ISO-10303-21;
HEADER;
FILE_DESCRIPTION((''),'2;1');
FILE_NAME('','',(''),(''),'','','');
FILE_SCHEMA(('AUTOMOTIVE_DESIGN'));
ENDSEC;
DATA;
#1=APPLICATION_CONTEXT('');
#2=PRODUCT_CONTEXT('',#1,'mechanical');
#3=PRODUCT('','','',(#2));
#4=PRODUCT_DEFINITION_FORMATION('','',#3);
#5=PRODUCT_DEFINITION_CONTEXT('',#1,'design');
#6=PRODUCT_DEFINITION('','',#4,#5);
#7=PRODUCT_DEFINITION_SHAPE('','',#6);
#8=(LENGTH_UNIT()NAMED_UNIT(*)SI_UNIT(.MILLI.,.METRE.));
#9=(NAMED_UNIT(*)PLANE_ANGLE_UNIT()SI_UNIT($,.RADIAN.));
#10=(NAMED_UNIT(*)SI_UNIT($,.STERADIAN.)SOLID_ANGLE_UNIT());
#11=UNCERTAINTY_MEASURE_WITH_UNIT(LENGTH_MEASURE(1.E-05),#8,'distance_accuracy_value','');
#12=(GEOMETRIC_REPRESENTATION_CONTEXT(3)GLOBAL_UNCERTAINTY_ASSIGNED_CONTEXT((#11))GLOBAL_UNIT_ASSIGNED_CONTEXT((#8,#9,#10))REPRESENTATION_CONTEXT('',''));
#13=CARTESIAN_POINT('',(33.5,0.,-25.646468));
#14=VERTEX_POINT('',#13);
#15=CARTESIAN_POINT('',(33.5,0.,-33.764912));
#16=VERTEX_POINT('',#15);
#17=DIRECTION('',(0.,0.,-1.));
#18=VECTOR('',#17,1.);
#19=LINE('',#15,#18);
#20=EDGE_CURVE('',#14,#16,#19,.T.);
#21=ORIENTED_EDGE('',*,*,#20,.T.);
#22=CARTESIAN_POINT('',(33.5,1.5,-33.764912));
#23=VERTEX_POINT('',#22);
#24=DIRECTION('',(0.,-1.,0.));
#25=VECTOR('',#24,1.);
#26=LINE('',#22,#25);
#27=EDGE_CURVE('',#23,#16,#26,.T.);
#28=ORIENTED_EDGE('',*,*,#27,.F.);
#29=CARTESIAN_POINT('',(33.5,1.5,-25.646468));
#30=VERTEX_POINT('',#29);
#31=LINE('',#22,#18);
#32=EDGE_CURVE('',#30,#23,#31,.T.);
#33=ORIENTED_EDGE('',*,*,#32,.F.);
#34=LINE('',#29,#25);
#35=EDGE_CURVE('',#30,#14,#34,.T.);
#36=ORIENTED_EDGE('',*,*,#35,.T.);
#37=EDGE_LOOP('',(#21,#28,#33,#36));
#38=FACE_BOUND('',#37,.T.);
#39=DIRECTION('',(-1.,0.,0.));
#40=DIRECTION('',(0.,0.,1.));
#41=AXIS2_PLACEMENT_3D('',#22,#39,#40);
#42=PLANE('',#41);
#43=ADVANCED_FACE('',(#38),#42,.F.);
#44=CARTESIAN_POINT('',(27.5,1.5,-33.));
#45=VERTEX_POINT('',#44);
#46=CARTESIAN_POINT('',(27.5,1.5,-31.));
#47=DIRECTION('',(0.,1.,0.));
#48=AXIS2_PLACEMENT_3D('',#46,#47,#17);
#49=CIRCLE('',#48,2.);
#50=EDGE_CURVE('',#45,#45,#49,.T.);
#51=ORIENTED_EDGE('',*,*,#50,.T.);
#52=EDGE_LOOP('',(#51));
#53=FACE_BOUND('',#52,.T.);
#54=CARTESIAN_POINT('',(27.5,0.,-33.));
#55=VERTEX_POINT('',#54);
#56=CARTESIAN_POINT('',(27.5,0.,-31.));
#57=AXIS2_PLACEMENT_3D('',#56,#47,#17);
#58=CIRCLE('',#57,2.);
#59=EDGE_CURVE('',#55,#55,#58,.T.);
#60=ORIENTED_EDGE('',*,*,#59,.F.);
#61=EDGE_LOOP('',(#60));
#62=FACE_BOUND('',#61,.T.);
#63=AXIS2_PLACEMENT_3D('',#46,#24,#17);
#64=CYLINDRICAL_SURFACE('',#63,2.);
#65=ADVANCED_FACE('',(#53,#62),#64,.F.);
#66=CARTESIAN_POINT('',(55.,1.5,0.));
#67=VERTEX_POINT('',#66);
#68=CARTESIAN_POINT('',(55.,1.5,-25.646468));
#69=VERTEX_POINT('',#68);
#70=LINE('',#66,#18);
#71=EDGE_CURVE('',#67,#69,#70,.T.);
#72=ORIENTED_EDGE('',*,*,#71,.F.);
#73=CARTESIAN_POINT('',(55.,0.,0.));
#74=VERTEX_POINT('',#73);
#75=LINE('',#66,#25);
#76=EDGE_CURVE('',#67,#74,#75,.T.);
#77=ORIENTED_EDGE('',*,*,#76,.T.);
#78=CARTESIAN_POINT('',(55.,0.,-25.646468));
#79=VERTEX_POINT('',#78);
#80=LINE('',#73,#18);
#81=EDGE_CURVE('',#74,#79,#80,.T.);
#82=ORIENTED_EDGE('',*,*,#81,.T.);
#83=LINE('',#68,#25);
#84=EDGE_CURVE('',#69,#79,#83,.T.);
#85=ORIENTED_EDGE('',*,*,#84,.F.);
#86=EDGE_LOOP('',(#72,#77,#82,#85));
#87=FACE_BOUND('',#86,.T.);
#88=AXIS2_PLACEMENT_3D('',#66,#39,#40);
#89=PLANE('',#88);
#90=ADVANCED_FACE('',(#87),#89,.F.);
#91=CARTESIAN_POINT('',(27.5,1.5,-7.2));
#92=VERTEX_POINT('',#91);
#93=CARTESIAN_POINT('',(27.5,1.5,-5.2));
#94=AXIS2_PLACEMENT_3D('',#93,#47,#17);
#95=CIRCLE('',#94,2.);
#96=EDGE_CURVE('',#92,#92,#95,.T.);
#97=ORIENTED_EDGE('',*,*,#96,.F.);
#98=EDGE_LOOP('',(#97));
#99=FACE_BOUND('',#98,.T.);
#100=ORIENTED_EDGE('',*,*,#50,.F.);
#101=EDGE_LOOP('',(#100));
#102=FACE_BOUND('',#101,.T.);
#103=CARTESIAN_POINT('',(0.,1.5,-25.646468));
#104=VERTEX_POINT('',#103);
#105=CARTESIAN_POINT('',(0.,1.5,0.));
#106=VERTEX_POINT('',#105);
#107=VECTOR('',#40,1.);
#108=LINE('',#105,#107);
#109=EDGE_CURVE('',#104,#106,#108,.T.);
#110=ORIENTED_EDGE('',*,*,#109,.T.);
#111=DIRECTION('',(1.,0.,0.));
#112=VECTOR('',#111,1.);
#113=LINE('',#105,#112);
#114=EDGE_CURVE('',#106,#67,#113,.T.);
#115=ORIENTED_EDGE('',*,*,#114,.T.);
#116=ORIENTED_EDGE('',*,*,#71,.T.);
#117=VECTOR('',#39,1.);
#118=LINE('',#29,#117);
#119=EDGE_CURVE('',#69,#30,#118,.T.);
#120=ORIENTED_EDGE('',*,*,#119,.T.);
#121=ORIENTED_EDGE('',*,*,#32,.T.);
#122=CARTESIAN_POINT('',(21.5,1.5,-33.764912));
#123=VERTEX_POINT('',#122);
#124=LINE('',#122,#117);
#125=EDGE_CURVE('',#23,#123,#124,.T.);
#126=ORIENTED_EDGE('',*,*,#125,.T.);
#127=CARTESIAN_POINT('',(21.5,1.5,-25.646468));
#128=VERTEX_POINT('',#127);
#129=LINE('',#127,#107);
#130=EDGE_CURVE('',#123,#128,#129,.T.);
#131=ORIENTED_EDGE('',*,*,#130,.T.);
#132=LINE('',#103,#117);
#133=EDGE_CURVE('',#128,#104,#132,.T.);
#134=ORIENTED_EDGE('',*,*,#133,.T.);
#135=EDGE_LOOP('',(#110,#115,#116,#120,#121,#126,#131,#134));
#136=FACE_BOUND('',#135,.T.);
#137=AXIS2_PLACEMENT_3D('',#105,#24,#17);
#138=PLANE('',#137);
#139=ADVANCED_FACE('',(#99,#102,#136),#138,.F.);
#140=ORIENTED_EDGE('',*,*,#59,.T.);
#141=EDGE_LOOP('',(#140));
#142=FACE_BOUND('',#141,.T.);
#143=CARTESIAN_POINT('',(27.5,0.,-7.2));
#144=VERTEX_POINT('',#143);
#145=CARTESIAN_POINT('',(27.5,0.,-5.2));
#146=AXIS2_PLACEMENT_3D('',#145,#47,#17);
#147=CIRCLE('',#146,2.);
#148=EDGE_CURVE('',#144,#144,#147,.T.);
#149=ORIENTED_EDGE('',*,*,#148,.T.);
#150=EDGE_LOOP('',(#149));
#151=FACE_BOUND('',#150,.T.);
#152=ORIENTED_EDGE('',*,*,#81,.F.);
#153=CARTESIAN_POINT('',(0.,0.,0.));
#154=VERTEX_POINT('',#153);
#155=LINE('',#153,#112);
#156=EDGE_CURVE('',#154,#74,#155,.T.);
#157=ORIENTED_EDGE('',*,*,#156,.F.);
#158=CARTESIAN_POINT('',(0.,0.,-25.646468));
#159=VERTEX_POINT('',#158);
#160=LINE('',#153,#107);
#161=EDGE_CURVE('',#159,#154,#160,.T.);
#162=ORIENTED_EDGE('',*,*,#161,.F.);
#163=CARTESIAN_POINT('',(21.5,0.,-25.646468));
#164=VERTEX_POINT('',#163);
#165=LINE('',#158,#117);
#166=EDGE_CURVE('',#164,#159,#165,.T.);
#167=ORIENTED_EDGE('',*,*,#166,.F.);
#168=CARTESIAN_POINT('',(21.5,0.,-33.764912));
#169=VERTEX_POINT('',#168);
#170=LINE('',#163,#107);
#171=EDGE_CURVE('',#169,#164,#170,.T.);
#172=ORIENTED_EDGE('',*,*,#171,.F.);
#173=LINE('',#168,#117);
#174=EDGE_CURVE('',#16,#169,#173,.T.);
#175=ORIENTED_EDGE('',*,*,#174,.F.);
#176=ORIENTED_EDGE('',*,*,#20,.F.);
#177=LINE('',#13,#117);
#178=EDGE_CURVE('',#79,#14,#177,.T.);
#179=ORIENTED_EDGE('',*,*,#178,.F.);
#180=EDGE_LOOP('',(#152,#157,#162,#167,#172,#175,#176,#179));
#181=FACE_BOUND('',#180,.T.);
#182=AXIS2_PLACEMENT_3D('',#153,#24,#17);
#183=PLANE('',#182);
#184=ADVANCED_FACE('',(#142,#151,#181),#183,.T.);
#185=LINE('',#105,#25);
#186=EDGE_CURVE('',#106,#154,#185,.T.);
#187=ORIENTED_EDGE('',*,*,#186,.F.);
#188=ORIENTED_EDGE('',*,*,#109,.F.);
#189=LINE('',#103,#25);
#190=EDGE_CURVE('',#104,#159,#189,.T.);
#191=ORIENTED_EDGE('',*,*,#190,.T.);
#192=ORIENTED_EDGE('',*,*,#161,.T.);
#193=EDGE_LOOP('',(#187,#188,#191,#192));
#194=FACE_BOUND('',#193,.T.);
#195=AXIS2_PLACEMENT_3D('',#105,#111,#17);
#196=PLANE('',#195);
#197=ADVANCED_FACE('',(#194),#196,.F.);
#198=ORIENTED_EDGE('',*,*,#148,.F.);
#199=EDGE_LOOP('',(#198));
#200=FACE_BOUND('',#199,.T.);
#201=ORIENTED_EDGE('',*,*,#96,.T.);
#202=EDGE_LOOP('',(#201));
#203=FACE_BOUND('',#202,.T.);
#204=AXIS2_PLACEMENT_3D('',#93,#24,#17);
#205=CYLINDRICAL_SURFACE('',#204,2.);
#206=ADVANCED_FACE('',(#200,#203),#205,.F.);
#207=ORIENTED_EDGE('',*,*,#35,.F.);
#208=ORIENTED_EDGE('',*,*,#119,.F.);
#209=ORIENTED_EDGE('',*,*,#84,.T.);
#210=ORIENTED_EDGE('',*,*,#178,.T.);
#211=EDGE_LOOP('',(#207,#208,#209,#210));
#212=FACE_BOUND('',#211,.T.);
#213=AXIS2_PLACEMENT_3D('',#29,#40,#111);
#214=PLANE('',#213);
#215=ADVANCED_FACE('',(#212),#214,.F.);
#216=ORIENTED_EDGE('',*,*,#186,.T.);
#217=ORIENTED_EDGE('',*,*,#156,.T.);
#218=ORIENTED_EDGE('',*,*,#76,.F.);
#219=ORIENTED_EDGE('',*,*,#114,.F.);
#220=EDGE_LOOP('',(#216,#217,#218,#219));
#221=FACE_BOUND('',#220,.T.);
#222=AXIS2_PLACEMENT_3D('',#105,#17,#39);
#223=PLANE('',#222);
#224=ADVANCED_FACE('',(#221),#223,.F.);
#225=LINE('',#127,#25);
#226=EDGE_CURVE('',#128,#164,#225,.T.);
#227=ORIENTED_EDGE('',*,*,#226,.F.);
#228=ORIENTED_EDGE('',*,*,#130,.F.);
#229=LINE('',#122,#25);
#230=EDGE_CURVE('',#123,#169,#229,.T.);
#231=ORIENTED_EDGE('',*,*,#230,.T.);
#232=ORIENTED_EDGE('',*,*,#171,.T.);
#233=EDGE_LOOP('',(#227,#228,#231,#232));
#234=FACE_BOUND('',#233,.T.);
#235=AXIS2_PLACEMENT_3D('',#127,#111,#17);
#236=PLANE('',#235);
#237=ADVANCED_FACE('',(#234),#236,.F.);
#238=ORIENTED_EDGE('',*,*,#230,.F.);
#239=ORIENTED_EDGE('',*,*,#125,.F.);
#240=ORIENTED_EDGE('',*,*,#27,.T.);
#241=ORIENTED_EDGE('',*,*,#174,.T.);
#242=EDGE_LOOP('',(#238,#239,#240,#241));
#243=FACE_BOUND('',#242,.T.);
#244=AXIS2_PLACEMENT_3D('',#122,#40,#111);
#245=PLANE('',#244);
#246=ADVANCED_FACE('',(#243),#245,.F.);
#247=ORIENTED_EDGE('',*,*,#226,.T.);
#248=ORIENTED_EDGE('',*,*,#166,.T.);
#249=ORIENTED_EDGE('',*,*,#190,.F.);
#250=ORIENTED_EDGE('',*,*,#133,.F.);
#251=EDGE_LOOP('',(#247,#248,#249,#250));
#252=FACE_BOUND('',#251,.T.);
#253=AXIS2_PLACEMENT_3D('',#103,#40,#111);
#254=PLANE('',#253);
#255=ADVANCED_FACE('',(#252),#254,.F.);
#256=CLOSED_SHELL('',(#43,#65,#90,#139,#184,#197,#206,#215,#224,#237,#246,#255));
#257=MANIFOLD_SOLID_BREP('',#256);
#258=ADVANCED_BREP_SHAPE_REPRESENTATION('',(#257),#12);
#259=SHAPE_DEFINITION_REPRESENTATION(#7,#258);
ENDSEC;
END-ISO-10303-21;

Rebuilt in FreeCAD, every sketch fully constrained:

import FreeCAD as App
import Part
import Sketcher
from FreeCAD import Vector
Q = App.Units.Quantity

doc = App.newDocument("Part")
body = doc.addObject("PartDesign::Body", "Body")

sketch1 = doc.addObject("Sketcher::SketchObject", "Sketch")
body.addObject(sketch1)
sketch1.AttachmentSupport = (doc.XZ_Plane, [""])
sketch1.MapMode = "FlatFace"
sketch1.addGeometry([
    Part.LineSegment(Vector(21.5, -25.6, 0), Vector(0, -25.6, 0)),
    Part.LineSegment(Vector(0, -25.6, 0), Vector(0, 0, 0)),
    Part.LineSegment(Vector(0, 0, 0), Vector(55, 0, 0)),
    Part.LineSegment(Vector(55, 0, 0), Vector(55, -25.6, 0)),
    Part.LineSegment(Vector(55, -25.6, 0), Vector(33.5, -25.6, 0)),
    Part.LineSegment(Vector(33.5, -25.6, 0), Vector(33.5, -33.8, 0)),
    Part.LineSegment(Vector(33.5, -33.8, 0), Vector(21.5, -33.8, 0)),
    Part.LineSegment(Vector(21.5, -33.8, 0), Vector(21.5, -25.6, 0)),
    Part.Circle(Vector(27.5, -5.2, 0), Vector(0, 0, 1), 2),
    Part.Circle(Vector(27.5, -31, 0), Vector(0, 0, 1), 2),
], False)
sketch1.addConstraint([
    Sketcher.Constraint("Coincident", 0, 2, 1, 1),
    Sketcher.Constraint("Coincident", 1, 2, 2, 1),
    Sketcher.Constraint("Coincident", 2, 2, 3, 1),
    Sketcher.Constraint("Coincident", 3, 2, 4, 1),
    Sketcher.Constraint("Coincident", 4, 2, 5, 1),
    Sketcher.Constraint("Coincident", 5, 2, 6, 1),
    Sketcher.Constraint("Coincident", 6, 2, 7, 1),
    Sketcher.Constraint("Coincident", 7, 2, 0, 1),
    Sketcher.Constraint("Horizontal", 0),
    Sketcher.Constraint("Vertical", 1),
    Sketcher.Constraint("Horizontal", 2),
    Sketcher.Constraint("Vertical", 3),
    Sketcher.Constraint("Horizontal", 4),
    Sketcher.Constraint("Vertical", 5),
    Sketcher.Constraint("Horizontal", 6),
    Sketcher.Constraint("Vertical", 7),
    Sketcher.Constraint("Coincident", 1, 2, -1, 1),
    Sketcher.Constraint("Equal", 8, 9),
    Sketcher.Constraint("Horizontal", 0, 2, 3, 2),
    Sketcher.Constraint("Vertical", 8, 3, 9, 3),
    Sketcher.Constraint("Equal", 0, 4),
    Sketcher.Constraint("Diameter", 8, Q("4 mm")),
    Sketcher.Constraint("DistanceX", 2, 1, 2, 2, Q("55 mm")),
    Sketcher.Constraint("DistanceX", 6, 2, 6, 1, Q("12 mm")),
    Sketcher.Constraint("DistanceY", 9, 3, -1, 1, Q("31 mm")),
    Sketcher.Constraint("DistanceX", 9, 3, 4, 2, Q("6 mm")),
    Sketcher.Constraint("DistanceY", 8, 3, -1, 1, Q("5.2 mm")),
    Sketcher.Constraint("DistanceY", 1, 1, 1, 2, Q("25.646468 mm")),
    Sketcher.Constraint("DistanceY", 5, 2, 5, 1, Q("8.118444 mm")),
])
pad1 = doc.addObject("PartDesign::Pad", "Pad")
body.addObject(pad1)
pad1.Profile = sketch1
pad1.Length = 1.5
pad1.Reversed = True

doc.recompute()
